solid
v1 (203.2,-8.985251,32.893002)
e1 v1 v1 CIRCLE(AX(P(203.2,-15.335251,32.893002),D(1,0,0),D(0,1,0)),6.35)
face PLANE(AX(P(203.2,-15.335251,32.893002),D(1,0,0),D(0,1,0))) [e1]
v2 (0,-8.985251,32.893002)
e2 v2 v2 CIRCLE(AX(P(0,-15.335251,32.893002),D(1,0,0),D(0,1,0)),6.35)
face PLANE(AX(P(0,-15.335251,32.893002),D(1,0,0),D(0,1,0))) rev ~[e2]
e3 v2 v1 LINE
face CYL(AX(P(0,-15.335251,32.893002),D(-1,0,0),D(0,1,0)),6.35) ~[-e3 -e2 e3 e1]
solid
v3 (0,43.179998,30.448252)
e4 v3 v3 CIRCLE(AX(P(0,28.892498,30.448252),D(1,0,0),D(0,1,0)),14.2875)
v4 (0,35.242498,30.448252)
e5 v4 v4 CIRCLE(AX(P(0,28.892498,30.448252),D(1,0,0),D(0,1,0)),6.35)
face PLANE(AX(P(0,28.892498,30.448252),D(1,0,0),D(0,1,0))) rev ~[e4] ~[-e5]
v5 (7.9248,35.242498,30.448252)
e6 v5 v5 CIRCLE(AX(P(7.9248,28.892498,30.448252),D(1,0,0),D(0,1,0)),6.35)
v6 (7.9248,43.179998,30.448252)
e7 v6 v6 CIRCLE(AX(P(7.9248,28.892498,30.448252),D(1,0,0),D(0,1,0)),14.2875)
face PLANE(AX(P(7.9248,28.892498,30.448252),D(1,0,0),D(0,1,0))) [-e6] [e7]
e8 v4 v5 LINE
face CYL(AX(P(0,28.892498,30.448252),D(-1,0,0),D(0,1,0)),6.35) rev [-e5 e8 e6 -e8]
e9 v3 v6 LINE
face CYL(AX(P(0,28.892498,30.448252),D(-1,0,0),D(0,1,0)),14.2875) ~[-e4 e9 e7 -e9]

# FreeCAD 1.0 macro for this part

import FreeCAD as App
import Part
import Sketcher
Q = App.Units.Quantity

doc = App.newDocument("Part")
params = doc.addObject("Spreadsheet::Sheet", "Params")
for row, (alias, value) in enumerate([
    ("sketch1_diameter", "0.5 in"),
    ("pad1_length", "8 in"),
    ("sketch2_diameter", "0.5 in"),
    ("sketch2_diameter2", "1.125 in"),
    ("pad2_length", "0.312 in"),
], start=1):
    params.set(f"A{row}", alias)
    params.set(f"B{row}", "=" + value)
    params.setAlias(f"B{row}", alias)

body = doc.addObject("PartDesign::Body", "Body")

# Sketch on YZ plane
sketch1 = body.newObject("Sketcher::SketchObject", "Sketch")
sketch1.AttachmentSupport = (doc.getObject("YZ_Plane"), [""])
sketch1.MapMode = "FlatFace"
sketch1.addGeometry(Part.Circle(App.Vector(-15, 33, 0), App.Vector(0, 0, 1), 6), False)
sketch1.addConstraint([
    Sketcher.Constraint("Diameter", 0, Q("0.5 in")),
    Sketcher.Constraint("DistanceY", -1, 1, 0, 3, Q("1.2950001 in")),
    Sketcher.Constraint("DistanceX", 0, 3, -1, 1, 15.335251),
])
sketch1.setExpression("Constraints[0]", "Params.sketch1_diameter")
pad1 = body.newObject("PartDesign::Pad", "Pad")
pad1.Profile = sketch1
pad1.setExpression("Length", "Params.pad1_length")
body2 = doc.addObject("PartDesign::Body", "Body001")

# Sketch on YZ plane
sketch2 = body2.newObject("Sketcher::SketchObject", "Sketch001")
sketch2.AttachmentSupport = (doc.getObject("YZ_Plane001"), [""])
sketch2.MapMode = "FlatFace"
sketch2.addGeometry([
    Part.Circle(App.Vector(29, 30, 0), App.Vector(0, 0, 1), 14),
    Part.Circle(App.Vector(29, 30, 0), App.Vector(0, 0, 1), 6),
], False)
sketch2.addConstraint([
    Sketcher.Constraint("Coincident", 1, 3, 0, 3),
    Sketcher.Constraint("Diameter", 1, Q("0.5 in")),
    Sketcher.Constraint("Diameter", 0, Q("1.125 in")),
    Sketcher.Constraint("DistanceX", -1, 1, 0, 3, Q("1.1374999 in")),
    Sketcher.Constraint("DistanceY", -1, 1, 0, 3, 30.448252),
])
sketch2.setExpression("Constraints[1]", "Params.sketch2_diameter")
sketch2.setExpression("Constraints[2]", "Params.sketch2_diameter2")
pad2 = body2.newObject("PartDesign::Pad", "Pad001")
pad2.Profile = sketch2
pad2.setExpression("Length", "Params.pad2_length")

doc.recompute()
